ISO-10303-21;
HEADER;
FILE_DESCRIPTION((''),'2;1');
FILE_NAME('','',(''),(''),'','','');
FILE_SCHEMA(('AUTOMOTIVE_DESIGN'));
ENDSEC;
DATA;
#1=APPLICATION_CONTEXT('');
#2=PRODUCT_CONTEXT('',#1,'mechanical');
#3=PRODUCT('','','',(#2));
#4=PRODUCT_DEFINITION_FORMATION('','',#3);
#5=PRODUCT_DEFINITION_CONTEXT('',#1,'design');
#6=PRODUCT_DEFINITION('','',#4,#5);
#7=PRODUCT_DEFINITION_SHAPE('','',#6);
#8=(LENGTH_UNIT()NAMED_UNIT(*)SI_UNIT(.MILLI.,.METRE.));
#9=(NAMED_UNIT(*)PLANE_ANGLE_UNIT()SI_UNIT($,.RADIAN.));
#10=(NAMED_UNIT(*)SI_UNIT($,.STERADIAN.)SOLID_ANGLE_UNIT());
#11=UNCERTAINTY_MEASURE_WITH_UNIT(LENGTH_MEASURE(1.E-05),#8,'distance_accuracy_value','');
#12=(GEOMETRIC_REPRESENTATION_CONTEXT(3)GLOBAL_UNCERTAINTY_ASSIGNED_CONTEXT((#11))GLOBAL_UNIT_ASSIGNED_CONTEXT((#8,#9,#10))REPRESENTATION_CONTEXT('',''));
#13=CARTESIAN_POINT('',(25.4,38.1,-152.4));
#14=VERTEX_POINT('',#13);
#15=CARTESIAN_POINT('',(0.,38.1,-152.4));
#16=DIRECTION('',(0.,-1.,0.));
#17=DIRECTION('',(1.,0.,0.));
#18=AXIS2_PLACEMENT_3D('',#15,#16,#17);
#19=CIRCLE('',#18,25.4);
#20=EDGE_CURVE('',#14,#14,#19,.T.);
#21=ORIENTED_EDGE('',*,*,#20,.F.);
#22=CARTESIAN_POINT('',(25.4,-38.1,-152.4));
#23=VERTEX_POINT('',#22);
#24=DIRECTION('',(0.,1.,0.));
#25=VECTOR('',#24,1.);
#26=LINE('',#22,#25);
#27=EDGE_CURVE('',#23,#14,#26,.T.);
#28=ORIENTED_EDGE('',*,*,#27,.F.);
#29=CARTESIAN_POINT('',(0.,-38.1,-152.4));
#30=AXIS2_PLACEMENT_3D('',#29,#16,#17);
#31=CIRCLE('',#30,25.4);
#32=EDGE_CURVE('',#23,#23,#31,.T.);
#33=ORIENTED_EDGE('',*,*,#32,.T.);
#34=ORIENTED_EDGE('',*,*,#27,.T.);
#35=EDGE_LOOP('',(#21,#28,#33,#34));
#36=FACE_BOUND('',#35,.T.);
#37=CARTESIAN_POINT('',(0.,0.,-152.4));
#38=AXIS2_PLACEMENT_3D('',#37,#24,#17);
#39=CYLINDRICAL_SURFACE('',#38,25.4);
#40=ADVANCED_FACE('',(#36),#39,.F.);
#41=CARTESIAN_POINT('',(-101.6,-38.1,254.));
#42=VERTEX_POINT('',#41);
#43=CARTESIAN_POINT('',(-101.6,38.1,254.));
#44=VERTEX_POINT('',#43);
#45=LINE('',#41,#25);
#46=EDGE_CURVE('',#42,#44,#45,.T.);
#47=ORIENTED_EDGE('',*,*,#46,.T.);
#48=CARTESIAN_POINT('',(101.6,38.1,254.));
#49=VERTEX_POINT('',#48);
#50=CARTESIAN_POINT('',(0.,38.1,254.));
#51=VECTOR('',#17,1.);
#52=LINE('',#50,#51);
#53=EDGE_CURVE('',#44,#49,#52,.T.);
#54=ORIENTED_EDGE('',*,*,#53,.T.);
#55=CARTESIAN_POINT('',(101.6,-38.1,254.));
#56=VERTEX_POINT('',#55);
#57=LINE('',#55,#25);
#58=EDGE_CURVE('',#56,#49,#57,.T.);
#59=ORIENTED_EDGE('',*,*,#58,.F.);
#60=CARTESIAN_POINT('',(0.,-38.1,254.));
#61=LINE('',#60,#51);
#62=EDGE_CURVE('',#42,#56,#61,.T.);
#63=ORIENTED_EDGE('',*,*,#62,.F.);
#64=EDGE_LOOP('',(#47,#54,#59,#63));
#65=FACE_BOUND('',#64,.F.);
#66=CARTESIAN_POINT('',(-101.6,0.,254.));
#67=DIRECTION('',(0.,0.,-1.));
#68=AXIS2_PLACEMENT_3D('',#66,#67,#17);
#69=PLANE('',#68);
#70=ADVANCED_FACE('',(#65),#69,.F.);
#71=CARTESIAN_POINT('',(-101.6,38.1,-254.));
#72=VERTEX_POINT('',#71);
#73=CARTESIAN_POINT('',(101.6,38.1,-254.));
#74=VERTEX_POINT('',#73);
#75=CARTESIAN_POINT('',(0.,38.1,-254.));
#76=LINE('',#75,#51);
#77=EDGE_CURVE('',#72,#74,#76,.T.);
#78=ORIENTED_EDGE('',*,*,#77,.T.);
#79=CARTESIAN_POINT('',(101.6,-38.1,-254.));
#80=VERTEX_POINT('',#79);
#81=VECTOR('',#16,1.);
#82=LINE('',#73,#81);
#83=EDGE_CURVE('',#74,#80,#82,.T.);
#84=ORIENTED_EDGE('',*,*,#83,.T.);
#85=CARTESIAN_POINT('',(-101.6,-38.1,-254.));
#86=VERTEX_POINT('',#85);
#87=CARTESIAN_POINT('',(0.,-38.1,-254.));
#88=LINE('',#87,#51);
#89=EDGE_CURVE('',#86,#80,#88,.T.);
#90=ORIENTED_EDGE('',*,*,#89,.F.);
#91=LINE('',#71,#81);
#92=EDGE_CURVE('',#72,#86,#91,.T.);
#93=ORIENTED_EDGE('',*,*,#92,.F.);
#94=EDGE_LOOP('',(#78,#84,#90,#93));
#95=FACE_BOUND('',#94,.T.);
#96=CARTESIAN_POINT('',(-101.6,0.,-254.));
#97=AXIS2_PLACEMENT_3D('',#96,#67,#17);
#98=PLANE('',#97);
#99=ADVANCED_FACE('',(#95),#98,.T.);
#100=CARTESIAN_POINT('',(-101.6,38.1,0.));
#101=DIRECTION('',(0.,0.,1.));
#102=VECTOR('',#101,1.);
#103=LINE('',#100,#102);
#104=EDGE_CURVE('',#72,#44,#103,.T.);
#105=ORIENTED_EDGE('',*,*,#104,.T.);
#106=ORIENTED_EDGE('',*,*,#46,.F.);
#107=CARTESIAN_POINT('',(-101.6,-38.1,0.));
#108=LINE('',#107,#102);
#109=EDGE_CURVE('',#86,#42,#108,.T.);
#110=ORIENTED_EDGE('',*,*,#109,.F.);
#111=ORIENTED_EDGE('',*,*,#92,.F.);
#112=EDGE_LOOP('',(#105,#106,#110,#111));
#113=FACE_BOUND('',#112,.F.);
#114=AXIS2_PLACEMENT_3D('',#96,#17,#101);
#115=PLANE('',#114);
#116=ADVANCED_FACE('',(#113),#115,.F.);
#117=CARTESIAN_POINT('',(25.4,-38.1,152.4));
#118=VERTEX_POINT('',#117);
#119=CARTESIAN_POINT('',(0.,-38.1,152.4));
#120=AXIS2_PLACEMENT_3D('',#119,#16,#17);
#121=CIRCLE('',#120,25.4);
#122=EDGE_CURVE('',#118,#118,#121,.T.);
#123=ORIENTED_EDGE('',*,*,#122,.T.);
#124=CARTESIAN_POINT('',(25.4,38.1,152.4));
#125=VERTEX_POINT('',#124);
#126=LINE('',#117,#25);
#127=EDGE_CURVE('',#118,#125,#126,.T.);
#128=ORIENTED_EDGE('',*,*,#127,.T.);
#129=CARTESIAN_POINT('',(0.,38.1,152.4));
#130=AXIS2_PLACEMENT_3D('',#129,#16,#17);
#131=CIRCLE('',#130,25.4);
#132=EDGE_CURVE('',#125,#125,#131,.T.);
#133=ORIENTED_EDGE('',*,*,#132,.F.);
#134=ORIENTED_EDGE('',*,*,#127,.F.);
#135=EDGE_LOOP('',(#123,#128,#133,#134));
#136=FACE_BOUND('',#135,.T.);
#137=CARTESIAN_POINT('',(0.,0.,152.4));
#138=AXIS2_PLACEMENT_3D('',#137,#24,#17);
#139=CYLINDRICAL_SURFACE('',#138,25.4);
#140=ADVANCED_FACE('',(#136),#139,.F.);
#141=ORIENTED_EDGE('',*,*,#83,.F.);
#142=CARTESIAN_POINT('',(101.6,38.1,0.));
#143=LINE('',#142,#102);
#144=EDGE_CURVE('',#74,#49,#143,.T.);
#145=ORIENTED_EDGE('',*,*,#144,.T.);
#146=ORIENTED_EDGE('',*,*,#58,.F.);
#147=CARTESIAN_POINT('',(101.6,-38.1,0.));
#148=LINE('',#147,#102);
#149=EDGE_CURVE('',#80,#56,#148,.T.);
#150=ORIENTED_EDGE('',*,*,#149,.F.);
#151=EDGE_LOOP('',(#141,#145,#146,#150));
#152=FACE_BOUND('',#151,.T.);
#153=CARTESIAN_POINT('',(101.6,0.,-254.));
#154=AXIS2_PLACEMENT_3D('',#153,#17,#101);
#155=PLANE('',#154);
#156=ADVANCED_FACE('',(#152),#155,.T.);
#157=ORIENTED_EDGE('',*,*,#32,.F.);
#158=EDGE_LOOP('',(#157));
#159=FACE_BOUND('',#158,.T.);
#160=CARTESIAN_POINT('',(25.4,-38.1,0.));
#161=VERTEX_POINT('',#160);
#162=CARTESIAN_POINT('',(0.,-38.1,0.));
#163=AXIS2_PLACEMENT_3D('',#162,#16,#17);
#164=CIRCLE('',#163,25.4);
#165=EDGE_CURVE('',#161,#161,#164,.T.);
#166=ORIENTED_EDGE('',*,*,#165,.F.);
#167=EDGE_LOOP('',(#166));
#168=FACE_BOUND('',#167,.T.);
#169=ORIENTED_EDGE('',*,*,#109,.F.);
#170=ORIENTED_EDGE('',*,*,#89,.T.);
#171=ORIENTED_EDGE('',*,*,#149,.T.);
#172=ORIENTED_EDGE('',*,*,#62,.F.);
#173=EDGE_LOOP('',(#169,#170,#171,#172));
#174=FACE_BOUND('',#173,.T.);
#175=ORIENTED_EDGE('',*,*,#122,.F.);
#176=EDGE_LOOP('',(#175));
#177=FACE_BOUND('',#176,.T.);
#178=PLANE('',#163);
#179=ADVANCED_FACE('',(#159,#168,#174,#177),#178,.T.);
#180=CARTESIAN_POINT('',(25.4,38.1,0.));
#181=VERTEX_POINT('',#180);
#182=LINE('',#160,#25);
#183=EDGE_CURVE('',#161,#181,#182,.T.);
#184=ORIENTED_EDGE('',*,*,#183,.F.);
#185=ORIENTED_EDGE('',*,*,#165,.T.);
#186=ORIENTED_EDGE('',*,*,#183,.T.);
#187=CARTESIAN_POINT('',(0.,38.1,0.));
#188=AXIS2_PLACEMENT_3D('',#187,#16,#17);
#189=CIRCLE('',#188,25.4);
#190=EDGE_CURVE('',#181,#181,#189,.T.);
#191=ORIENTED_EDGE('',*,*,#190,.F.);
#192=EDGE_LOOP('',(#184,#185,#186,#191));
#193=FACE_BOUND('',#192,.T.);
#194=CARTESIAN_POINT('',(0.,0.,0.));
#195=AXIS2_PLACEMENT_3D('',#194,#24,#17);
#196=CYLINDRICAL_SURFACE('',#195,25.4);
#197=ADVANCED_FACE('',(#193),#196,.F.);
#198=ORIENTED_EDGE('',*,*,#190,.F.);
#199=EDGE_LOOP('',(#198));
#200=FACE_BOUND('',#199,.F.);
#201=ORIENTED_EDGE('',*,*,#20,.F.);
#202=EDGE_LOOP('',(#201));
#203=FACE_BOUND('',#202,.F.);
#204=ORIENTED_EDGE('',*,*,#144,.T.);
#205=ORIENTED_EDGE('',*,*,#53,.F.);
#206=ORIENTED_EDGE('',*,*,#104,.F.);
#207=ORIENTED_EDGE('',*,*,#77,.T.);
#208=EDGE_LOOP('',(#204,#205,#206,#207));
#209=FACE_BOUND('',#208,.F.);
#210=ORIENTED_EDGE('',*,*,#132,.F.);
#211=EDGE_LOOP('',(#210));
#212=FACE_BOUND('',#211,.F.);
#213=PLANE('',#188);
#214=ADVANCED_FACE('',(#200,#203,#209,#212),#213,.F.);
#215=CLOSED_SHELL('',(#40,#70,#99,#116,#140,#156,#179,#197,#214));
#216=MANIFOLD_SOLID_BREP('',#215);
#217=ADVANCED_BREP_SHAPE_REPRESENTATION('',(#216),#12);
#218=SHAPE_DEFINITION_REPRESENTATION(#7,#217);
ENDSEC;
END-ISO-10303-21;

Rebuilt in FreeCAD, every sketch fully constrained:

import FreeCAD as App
import Part
import Sketcher

V = App.Vector
Q = App.Units.Quantity

doc = App.newDocument("Part")
body = doc.addObject("PartDesign::Body", "Body")

# Sketch on XZ plane
sketch1 = body.newObject("Sketcher::SketchObject", "Sketch")
sketch1.AttachmentSupport = (doc.getObject("XZ_Plane"), [""])
sketch1.MapMode = "FlatFace"
sketch1.addGeometry([
    Part.LineSegment(V(-102, 254, 0), V(-102, -254, 0)),  # 0
    Part.LineSegment(V(-102, -254, 0), V(102, -254, 0)),  # 1
    Part.LineSegment(V(102, -254, 0), V(102, 254, 0)),  # 2
    Part.LineSegment(V(102, 254, 0), V(-102, 254, 0)),  # 3
    Part.Circle(V(0, -152, 0), V(0, 0, 1), 25),  # 4
    Part.Circle(V(0, 0, 0), V(0, 0, 1), 25),  # 5
    Part.Circle(V(0, 152, 0), V(0, 0, 1), 25),  # 6
], False)
sketch1.addConstraint([
    Sketcher.Constraint("Coincident", 0, 2, 1, 1),
    Sketcher.Constraint("Coincident", 1, 2, 2, 1),
    Sketcher.Constraint("Coincident", 2, 2, 3, 1),
    Sketcher.Constraint("Coincident", 3, 2, 0, 1),
    Sketcher.Constraint("Vertical", 0),
    Sketcher.Constraint("Horizontal", 1),
    Sketcher.Constraint("Vertical", 2),
    Sketcher.Constraint("Horizontal", 3),
    Sketcher.Constraint("Coincident", 5, 3, -1, 1),
    Sketcher.Constraint("Equal", 4, 5),
    Sketcher.Constraint("Equal", 5, 6),
    Sketcher.Constraint("Symmetric", 4, 3, 6, 3, -1, 1),
    Sketcher.Constraint("Symmetric", 0, 2, 2, 2, -1, 1),
    Sketcher.Constraint("PointOnObject", 4, 3, -2),
    Sketcher.Constraint("Diameter", 4, Q("2 in")),
    Sketcher.Constraint("DistanceX", 1, 1, 1, 2, Q("8 in")),
    Sketcher.Constraint("DistanceY", 0, 2, 0, 1, Q("20 in")),
    Sketcher.Constraint("DistanceY", 4, 3, -1, 1, Q("6 in")),
])
pad1 = body.newObject("PartDesign::Pad", "Pad")
pad1.Profile = sketch1
pad1.Length = Q("3 in")
pad1.Midplane = True

doc.recompute()
